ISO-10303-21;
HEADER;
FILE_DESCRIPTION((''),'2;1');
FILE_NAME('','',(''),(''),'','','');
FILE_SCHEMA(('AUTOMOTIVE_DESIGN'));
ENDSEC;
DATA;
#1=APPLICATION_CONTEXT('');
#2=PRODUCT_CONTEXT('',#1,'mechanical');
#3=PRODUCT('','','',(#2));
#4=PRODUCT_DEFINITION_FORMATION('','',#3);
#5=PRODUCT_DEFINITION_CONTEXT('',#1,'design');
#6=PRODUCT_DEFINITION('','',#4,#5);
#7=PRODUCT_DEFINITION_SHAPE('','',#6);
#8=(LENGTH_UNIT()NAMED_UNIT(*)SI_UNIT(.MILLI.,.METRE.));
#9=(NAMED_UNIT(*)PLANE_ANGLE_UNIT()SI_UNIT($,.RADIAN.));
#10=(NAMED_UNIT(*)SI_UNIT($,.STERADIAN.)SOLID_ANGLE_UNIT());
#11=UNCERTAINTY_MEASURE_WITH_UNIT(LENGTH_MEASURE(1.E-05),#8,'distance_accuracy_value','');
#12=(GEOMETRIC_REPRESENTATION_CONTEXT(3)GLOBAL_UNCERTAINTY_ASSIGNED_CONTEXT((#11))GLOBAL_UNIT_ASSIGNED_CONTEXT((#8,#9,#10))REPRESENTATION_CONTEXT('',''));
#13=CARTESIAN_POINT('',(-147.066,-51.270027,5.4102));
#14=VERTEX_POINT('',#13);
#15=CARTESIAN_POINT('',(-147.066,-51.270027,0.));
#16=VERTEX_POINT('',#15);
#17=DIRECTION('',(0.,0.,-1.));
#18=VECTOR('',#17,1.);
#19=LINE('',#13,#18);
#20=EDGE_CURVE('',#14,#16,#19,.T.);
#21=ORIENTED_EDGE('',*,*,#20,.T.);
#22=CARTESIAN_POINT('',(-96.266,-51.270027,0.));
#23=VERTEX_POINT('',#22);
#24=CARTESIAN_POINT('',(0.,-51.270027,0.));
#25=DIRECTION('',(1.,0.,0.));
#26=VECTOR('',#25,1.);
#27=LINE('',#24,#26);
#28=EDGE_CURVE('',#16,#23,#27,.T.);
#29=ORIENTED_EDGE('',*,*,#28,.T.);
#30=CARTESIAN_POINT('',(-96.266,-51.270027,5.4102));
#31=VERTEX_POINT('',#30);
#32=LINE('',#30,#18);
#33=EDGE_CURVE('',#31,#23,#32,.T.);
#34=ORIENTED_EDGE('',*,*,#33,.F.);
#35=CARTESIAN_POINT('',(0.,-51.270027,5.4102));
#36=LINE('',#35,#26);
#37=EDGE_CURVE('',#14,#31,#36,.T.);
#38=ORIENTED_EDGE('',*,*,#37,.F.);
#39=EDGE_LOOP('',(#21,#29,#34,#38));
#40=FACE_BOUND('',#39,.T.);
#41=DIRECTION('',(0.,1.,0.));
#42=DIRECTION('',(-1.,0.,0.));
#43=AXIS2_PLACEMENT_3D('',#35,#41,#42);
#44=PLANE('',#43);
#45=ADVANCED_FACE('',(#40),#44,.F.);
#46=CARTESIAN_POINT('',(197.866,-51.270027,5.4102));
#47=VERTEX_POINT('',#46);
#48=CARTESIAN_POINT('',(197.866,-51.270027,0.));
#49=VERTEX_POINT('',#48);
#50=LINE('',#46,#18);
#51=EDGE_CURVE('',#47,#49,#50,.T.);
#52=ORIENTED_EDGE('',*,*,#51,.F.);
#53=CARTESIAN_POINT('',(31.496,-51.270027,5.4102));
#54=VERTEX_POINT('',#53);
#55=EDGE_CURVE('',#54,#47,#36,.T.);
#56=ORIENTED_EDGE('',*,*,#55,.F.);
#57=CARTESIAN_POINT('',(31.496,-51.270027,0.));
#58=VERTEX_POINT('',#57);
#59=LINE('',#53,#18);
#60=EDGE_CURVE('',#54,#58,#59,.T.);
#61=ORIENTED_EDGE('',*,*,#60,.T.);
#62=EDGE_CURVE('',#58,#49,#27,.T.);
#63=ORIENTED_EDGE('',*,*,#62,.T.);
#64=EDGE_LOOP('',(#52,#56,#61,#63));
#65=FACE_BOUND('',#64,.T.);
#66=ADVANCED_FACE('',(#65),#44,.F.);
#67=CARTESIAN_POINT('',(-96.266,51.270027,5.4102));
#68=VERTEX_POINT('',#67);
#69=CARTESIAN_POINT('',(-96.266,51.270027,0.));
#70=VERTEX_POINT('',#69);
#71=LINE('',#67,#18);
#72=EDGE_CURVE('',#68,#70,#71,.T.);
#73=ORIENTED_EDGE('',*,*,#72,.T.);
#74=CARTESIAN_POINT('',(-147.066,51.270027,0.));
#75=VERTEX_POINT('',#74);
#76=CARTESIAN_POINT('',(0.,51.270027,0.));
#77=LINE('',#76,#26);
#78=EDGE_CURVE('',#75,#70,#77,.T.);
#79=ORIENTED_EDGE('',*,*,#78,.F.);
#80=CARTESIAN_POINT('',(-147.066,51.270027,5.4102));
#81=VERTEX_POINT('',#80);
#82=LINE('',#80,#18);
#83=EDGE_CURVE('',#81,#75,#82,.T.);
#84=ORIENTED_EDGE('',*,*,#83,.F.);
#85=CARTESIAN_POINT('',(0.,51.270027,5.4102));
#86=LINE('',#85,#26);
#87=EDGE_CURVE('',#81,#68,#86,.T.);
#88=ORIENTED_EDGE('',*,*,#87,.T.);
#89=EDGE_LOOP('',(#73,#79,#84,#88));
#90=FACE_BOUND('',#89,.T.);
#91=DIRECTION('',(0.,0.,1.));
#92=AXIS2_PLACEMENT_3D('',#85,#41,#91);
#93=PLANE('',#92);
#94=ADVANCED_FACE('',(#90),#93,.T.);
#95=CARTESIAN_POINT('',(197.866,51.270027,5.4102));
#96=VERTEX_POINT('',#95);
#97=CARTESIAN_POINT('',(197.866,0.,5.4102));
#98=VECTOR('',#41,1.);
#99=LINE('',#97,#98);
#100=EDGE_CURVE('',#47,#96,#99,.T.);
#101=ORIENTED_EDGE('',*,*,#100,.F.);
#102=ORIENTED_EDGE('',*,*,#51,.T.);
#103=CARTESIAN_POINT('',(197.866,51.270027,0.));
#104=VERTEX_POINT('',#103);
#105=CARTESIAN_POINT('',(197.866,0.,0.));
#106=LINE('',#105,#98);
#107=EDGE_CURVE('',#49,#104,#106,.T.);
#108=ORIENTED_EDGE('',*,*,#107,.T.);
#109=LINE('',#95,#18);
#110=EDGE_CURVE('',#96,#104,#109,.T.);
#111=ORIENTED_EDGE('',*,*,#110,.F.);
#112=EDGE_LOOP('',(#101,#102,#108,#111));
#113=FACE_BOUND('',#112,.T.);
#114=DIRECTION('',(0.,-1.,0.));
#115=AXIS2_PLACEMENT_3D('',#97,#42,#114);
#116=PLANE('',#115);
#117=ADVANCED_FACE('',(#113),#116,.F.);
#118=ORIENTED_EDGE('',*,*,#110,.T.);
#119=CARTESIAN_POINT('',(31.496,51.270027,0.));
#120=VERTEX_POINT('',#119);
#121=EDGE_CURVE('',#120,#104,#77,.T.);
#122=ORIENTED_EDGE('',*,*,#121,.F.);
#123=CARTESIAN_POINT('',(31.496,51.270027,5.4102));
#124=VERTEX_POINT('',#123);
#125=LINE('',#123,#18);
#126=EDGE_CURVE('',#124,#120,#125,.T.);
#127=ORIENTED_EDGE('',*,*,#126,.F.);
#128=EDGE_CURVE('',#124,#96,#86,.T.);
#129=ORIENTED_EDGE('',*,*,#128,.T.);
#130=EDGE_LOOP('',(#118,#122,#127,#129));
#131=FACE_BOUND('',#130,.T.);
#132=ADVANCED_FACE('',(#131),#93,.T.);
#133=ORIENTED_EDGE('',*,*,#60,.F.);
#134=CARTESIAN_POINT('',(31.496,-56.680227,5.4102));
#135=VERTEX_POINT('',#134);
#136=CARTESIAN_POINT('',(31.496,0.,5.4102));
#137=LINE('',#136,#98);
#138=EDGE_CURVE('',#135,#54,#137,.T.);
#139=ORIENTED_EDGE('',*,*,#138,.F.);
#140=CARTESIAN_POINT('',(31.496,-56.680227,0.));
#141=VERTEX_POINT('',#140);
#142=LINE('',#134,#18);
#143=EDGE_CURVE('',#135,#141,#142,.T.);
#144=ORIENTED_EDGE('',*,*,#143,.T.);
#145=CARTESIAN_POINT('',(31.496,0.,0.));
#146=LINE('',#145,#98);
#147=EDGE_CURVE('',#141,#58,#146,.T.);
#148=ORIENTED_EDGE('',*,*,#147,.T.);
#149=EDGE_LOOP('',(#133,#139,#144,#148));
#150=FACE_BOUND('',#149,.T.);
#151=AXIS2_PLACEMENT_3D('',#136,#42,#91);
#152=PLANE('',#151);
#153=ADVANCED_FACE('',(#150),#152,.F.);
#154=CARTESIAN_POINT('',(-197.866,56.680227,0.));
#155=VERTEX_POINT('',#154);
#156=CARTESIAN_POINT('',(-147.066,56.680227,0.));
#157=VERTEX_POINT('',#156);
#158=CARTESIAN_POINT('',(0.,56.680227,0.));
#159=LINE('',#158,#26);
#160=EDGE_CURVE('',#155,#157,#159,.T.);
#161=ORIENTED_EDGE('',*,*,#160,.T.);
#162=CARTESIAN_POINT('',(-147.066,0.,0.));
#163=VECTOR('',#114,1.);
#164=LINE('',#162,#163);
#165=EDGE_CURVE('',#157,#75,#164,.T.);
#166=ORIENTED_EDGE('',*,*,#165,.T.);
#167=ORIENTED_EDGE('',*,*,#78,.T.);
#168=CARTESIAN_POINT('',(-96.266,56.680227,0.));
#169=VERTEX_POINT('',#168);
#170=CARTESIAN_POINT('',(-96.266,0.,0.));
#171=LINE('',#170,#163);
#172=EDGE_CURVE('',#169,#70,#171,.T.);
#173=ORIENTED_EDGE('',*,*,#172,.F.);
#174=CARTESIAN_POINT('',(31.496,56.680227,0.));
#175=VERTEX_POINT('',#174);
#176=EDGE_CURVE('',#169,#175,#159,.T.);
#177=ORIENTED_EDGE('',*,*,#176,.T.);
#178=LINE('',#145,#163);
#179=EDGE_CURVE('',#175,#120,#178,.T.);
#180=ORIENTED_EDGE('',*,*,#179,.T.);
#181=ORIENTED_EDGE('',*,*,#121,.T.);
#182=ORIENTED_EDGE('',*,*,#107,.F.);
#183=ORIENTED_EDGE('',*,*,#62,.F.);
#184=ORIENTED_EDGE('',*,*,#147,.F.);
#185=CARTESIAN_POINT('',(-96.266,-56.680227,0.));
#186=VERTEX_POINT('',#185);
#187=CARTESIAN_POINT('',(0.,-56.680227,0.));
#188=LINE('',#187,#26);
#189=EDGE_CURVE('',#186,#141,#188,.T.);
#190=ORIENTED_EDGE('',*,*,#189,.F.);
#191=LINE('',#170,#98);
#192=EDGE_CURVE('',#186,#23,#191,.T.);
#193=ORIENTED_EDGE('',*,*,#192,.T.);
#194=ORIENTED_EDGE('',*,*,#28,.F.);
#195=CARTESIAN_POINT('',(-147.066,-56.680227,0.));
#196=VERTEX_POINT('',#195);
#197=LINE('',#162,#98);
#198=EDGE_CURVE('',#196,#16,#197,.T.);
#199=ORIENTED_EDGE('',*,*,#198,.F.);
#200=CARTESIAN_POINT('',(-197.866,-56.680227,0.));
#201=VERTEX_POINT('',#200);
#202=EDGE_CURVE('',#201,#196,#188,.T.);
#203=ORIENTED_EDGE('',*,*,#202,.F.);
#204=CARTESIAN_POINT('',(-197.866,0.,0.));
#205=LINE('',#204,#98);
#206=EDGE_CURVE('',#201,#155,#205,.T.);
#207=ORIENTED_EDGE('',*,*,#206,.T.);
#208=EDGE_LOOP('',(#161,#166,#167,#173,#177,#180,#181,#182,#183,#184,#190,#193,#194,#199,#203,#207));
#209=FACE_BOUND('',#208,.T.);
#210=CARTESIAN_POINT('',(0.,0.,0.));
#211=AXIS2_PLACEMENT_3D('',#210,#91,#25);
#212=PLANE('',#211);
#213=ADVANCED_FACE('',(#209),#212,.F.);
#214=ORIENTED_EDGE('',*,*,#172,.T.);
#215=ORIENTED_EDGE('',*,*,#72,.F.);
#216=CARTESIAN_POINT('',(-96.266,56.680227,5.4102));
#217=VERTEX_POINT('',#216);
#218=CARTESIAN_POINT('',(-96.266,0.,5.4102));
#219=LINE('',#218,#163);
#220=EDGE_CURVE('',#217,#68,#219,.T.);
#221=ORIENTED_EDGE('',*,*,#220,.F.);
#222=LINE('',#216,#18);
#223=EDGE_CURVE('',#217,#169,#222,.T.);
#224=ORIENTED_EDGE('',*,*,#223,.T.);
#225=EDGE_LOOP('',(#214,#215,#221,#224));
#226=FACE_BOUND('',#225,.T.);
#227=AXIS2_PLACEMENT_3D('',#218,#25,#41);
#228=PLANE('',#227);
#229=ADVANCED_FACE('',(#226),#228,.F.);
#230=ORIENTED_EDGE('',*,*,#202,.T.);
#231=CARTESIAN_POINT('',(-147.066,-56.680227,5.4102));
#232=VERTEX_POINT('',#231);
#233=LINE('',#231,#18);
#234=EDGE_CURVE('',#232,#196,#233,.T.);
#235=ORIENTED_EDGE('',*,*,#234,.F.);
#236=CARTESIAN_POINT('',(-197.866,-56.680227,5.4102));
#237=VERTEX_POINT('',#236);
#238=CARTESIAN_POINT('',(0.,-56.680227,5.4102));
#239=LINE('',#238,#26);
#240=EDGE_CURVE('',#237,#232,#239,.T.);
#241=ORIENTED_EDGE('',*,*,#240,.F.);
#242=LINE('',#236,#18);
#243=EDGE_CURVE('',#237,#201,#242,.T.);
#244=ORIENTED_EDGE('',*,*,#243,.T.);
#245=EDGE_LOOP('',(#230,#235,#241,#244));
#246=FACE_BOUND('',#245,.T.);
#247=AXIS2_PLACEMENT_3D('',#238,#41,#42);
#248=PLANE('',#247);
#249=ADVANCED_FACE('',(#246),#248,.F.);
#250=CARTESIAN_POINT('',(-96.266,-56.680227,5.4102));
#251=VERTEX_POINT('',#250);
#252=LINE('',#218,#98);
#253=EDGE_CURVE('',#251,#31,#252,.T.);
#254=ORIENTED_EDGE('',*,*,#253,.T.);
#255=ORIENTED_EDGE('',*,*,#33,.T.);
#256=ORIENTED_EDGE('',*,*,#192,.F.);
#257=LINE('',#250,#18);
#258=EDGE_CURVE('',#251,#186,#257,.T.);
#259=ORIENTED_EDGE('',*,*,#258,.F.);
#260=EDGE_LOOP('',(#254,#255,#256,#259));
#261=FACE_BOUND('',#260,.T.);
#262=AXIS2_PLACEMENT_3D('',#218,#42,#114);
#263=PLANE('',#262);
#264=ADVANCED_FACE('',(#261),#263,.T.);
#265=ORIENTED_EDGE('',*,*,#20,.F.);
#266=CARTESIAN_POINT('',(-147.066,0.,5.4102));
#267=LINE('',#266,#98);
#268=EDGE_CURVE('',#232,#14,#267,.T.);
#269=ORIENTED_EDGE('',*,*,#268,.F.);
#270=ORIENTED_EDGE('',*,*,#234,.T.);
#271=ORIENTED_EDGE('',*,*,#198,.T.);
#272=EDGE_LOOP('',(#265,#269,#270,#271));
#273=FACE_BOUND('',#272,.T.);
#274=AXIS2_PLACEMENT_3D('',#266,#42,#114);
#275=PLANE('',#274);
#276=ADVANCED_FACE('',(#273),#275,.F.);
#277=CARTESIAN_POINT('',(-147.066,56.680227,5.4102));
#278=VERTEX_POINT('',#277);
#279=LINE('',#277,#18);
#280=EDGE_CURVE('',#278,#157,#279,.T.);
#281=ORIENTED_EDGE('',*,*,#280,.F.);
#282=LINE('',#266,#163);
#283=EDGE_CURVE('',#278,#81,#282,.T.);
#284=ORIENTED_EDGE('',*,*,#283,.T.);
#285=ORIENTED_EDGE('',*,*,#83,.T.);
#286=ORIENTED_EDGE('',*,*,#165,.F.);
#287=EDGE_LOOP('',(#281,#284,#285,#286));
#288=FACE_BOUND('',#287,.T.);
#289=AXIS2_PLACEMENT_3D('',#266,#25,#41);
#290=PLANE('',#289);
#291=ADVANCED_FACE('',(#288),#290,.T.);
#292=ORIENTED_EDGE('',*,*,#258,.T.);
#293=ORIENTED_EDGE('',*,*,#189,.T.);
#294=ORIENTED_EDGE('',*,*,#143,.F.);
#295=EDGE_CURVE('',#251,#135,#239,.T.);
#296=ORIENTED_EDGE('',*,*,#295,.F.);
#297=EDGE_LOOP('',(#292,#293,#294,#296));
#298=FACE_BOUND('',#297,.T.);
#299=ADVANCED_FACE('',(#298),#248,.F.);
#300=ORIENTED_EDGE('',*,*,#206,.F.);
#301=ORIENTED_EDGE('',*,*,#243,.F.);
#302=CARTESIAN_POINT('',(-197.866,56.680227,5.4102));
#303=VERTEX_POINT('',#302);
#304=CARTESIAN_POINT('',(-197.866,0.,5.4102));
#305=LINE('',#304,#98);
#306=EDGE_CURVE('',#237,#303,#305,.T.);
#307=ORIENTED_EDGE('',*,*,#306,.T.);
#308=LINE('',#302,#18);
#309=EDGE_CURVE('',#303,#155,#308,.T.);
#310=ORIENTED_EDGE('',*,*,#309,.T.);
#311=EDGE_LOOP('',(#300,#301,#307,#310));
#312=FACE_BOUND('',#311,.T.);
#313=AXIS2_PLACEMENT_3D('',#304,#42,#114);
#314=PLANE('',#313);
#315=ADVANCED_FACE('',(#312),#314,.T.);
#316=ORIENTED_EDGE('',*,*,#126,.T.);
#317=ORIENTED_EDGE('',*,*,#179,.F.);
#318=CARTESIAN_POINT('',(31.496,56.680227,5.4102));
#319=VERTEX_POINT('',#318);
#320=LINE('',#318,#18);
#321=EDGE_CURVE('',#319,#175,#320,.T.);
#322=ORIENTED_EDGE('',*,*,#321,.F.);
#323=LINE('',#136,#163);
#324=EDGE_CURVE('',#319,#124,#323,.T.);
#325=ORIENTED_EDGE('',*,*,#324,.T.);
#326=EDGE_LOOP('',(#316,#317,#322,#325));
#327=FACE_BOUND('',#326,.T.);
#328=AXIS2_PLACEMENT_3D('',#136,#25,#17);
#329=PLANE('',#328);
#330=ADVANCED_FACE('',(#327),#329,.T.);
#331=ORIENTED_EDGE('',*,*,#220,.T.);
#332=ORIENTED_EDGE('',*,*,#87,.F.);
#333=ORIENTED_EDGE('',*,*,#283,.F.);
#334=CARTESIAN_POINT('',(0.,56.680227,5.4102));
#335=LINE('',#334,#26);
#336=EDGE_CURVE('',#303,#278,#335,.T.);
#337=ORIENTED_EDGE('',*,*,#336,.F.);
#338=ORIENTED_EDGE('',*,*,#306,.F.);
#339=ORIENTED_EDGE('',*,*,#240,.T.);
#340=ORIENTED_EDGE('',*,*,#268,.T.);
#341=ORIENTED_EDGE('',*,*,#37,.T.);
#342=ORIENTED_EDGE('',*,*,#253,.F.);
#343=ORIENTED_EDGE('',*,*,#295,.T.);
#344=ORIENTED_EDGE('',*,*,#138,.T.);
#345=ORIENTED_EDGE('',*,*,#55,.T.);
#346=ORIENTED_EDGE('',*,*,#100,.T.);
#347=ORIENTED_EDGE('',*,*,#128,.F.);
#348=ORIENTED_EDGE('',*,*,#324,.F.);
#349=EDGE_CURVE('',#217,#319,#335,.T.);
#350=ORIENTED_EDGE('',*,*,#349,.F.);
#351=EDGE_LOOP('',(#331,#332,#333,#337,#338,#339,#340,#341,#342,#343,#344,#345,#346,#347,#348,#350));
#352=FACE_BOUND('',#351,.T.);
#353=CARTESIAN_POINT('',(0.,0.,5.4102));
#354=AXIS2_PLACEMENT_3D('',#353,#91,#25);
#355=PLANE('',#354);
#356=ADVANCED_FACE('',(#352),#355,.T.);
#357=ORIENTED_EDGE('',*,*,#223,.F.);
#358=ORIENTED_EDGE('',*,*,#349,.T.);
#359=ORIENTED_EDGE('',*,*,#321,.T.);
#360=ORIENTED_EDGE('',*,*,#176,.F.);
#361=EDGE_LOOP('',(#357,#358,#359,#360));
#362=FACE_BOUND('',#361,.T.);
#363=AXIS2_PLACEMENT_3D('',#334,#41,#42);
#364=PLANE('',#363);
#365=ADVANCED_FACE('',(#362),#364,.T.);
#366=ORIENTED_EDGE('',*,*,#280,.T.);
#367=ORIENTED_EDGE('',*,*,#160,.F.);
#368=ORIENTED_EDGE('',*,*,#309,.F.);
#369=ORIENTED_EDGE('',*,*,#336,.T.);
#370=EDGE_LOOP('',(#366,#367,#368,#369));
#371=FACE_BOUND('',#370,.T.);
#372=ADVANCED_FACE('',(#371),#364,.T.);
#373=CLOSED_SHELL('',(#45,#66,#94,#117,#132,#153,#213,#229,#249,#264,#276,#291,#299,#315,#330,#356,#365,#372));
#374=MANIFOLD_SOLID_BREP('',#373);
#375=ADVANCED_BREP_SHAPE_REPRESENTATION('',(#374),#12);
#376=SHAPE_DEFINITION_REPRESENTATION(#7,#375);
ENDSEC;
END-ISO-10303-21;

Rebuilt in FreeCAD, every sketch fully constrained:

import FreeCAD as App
import Part
import Sketcher
from FreeCAD import Vector
Q = App.Units.Quantity


def add_polygon(sketch, points):
    """Adds a closed chain of lines whose ends are joined by coincident constraints."""
    first, n = sketch.GeometryCount, len(points)
    for a, b in zip(points, points[1:] + points[:1]):
        sketch.addGeometry(Part.LineSegment(App.Vector(*a, 0), App.Vector(*b, 0)), False)
    for i in range(n):
        sketch.addConstraint(Sketcher.Constraint("Coincident", first + i, 2, first + (i + 1) % n, 1))

doc = App.newDocument("Part")
params = doc.addObject("Spreadsheet::Sheet", "Params")
for row, (alias, value) in enumerate([
    ("sketch1_width", "2 in"),
    ("sketch1_width2", "5.03 in"),
    ("sketch1_width3", "6.55 in"),
    ("sketch1_height", "0.213 in"),
    ("pad1_length", "0.213 in"),
], start=1):
    params.set(f"A{row}", alias)
    params.set(f"B{row}", "=" + value)
    params.setAlias(f"B{row}", alias)

body = doc.addObject("PartDesign::Body", "Body")

sketch1 = body.newObject("Sketcher::SketchObject", "Sketch")
sketch1.AttachmentSupport = (doc.getObject("XY_Plane"), [""])
sketch1.MapMode = "FlatFace"
add_polygon(sketch1, [(-197.866, -56.680227), (-147.066, -56.680227), (-147.066, -51.270027), (-96.266, -51.270027), (-96.266, -56.680227), (31.496, -56.680227), (31.496, -51.270027), (197.866, -51.270027), (197.866, 51.270027), (31.496, 51.270027), (31.496, 56.680227), (-96.266, 56.680227), (-96.266, 51.270027), (-147.066, 51.270027), (-147.066, 56.680227), (-197.866, 56.680227)])
sketch1.addConstraint(Sketcher.Constraint("Horizontal", 0))
sketch1.addConstraint(Sketcher.Constraint("Vertical", 1))
sketch1.addConstraint(Sketcher.Constraint("Horizontal", 2))
sketch1.addConstraint(Sketcher.Constraint("Vertical", 3))
sketch1.addConstraint(Sketcher.Constraint("Horizontal", 4))
sketch1.addConstraint(Sketcher.Constraint("Vertical", 5))
sketch1.addConstraint(Sketcher.Constraint("Horizontal", 6))
sketch1.addConstraint(Sketcher.Constraint("Vertical", 7))
sketch1.addConstraint(Sketcher.Constraint("Horizontal", 8))
sketch1.addConstraint(Sketcher.Constraint("Vertical", 9))
sketch1.addConstraint(Sketcher.Constraint("Horizontal", 10))
sketch1.addConstraint(Sketcher.Constraint("Vertical", 11))
sketch1.addConstraint(Sketcher.Constraint("Horizontal", 12))
sketch1.addConstraint(Sketcher.Constraint("Vertical", 13))
sketch1.addConstraint(Sketcher.Constraint("Horizontal", 14))
sketch1.addConstraint(Sketcher.Constraint("Vertical", 15))
sketch1.addConstraint(Sketcher.Constraint("Symmetric", 5, 2, 8, 2, -1))
sketch1.addConstraint(Sketcher.Constraint("Symmetric", 3, 2, 10, 2, -1))
sketch1.addConstraint(Sketcher.Constraint("Symmetric", 1, 2, 12, 2, -1))
sketch1.addConstraint(Sketcher.Constraint("Horizontal", 0, 2, 3, 2))
sketch1.addConstraint(Sketcher.Constraint("Horizontal", 2, 2, 5, 2))
sketch1.addConstraint(Sketcher.Constraint("Horizontal", 10, 2, 13, 2))
sketch1.addConstraint(Sketcher.Constraint("Equal", 0, 2))
sketch1.addConstraint(Sketcher.Constraint("DistanceX", 0, 1, 0, 2, Q("2 in")))
sketch1.addConstraint(Sketcher.Constraint("DistanceX", 4, 1, 4, 2, Q("5.03 in")))
sketch1.addConstraint(Sketcher.Constraint("DistanceX", 6, 1, 6, 2, Q("6.55 in")))
sketch1.addConstraint(Sketcher.Constraint("DistanceY", 1, 1, 1, 2, Q("0.213 in")))
sketch1.addConstraint(Sketcher.Constraint("DistanceX", 0, 2, -1, 1, Q("5.79 in")))
sketch1.addConstraint(Sketcher.Constraint("DistanceY", 7, 1, 7, 2, Q("102.540054 mm")))
sketch1.setExpression("Constraints[39]", "Params.sketch1_width")
sketch1.setExpression("Constraints[40]", "Params.sketch1_width2")
sketch1.setExpression("Constraints[41]", "Params.sketch1_width3")
sketch1.setExpression("Constraints[42]", "Params.sketch1_height")
pad1 = body.newObject("PartDesign::Pad", "Pad")
pad1.Profile = sketch1
pad1.setExpression("Length", "Params.pad1_length")

doc.recompute()
